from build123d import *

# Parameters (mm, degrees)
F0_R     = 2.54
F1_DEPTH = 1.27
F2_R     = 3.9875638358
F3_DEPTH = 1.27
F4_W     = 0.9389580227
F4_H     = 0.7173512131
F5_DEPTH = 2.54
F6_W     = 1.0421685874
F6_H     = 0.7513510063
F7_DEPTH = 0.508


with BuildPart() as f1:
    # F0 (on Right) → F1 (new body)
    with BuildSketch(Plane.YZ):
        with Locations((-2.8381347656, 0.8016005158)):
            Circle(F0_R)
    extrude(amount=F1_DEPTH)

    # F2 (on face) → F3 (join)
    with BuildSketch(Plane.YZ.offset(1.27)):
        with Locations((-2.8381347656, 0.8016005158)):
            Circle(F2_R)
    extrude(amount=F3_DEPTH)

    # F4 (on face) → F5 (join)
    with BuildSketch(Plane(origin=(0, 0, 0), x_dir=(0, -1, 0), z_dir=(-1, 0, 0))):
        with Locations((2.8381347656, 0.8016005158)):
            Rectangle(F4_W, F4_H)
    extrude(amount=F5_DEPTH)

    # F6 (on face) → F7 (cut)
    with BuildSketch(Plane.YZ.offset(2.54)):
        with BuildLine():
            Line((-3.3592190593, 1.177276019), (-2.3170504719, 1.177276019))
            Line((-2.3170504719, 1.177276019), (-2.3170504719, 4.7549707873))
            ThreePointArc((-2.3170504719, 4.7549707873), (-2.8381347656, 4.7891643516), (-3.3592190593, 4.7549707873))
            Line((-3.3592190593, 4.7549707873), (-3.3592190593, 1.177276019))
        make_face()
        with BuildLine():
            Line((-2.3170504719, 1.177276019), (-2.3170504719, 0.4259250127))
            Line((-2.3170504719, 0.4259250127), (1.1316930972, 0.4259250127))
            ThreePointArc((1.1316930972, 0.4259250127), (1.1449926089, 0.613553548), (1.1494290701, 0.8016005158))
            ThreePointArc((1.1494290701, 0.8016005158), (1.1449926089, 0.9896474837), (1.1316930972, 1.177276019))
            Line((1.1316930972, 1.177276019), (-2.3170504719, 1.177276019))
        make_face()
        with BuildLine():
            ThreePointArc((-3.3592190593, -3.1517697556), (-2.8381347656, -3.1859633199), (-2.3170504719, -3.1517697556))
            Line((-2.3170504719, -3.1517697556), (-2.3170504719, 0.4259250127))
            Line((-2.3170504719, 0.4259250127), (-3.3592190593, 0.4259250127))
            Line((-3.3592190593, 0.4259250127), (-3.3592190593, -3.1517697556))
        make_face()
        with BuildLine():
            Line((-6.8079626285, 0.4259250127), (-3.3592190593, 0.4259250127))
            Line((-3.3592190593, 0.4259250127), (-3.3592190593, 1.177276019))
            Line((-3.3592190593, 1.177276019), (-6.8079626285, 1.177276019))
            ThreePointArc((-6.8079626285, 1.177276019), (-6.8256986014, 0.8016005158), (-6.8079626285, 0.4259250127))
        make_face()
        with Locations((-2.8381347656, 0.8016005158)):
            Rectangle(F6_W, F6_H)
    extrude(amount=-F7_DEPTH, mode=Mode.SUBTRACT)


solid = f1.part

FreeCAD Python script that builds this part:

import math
import FreeCAD as App
import Part
import Sketcher
Q = App.Units.Quantity


def add_polygon(sketch, points):
    """Adds a closed chain of lines whose ends are joined by coincident constraints."""
    first, n = sketch.GeometryCount, len(points)
    for a, b in zip(points, points[1:] + points[:1]):
        sketch.addGeometry(Part.LineSegment(App.Vector(*a, 0), App.Vector(*b, 0)), False)
    for i in range(n):
        sketch.addConstraint(Sketcher.Constraint("Coincident", first + i, 2, first + (i + 1) % n, 1))

doc = App.newDocument("Part")
params = doc.addObject("Spreadsheet::Sheet", "Params")
for row, (alias, value) in enumerate([
    ("sketch1_diameter", "0.2 in"),
    ("pad1_length", "0.05 in"),
    ("pad2_length", "0.05 in"),
    ("pad3_length", "0.1 in"),
    ("pocket1_length", "0.02 in"),
], start=1):
    params.set(f"A{row}", alias)
    params.set(f"B{row}", "=" + value)
    params.setAlias(f"B{row}", alias)

body = doc.addObject("PartDesign::Body", "Body")

sketch1 = doc.addObject("Sketcher::SketchObject", "Sketch")
body.addObject(sketch1)
sketch1.AttachmentSupport = (doc.YZ_Plane, [""])
sketch1.MapMode = "FlatFace"
sketch1.addGeometry(Part.Circle(App.Vector(-2.838135, 0.801601, 0), App.Vector(0, 0, 1), 2.54), False)
sketch1.addConstraint([
    Sketcher.Constraint("Diameter", 0, Q("0.2 in")),
    Sketcher.Constraint("DistanceY", -1, 1, 0, 3, 0.801601),
    Sketcher.Constraint("DistanceX", 0, 3, -1, 1, 2.838135),
])
sketch1.setExpression("Constraints[0]", "Params.sketch1_diameter")
pad1 = doc.addObject("PartDesign::Pad", "Pad")
body.addObject(pad1)
pad1.Profile = sketch1
pad1.setExpression("Length", "Params.pad1_length")

sketch2 = doc.addObject("Sketcher::SketchObject", "Sketch001")
body.addObject(sketch2)
sketch2.AttachmentSupport = (doc.YZ_Plane, [""])
sketch2.MapMode = "FlatFace"
sketch2.AttachmentOffset = App.Placement(App.Vector(0, 0, 0.05 * 25.4), App.Rotation())
sketch2.addGeometry(Part.Circle(App.Vector(-2.838135, 0.801601, 0), App.Vector(0, 0, 1), 3.987564), False)
sketch2.addConstraint([
    Sketcher.Constraint("Diameter", 0, 7.975128),
    Sketcher.Constraint("DistanceY", -1, 1, 0, 3, 0.801601),
    Sketcher.Constraint("DistanceX", 0, 3, -1, 1, 2.838135),
])
pad2 = doc.addObject("PartDesign::Pad", "Pad001")
body.addObject(pad2)
pad2.Profile = sketch2
pad2.setExpression("Length", "Params.pad2_length")

sketch3 = doc.addObject("Sketcher::SketchObject", "Sketch002")
body.addObject(sketch3)
sketch3.AttachmentSupport = (doc.YZ_Plane, [""])
sketch3.MapMode = "FlatFace"
add_polygon(sketch3, [(-2.368656, 1.160276), (-2.368656, 0.442925), (-3.307614, 0.442925), (-3.307614, 1.160276)])
sketch3.addConstraint([
    Sketcher.Constraint("Vertical", 0),
    Sketcher.Constraint("Horizontal", 1),
    Sketcher.Constraint("Vertical", 2),
    Sketcher.Constraint("Horizontal", 3),
    Sketcher.Constraint("DistanceX", 1, 2, 1, 1, 0.938958),
    Sketcher.Constraint("DistanceY", 0, 2, 0, 1, 0.717351),
    Sketcher.Constraint("DistanceX", 0, 2, -1, 1, 2.368656),
    Sketcher.Constraint("DistanceY", -1, 1, 0, 2, 0.442925),
])
pad3 = doc.addObject("PartDesign::Pad", "Pad002")
body.addObject(pad3)
pad3.Profile = sketch3
pad3.setExpression("Length", "Params.pad3_length")
pad3.Reversed = True

sketch4 = doc.addObject("Sketcher::SketchObject", "Sketch003")
body.addObject(sketch4)
sketch4.AttachmentSupport = (doc.YZ_Plane, [""])
sketch4.MapMode = "FlatFace"
sketch4.AttachmentOffset = App.Placement(App.Vector(0, 0, 0.1 * 25.4), App.Rotation())
sketch4.addGeometry([
    Part.LineSegment(App.Vector(-2.31705, 1.177276, 0), App.Vector(-2.31705, 4.754971, 0)),
    Part.ArcOfCircle(Part.Circle(App.Vector(-2.838135, 0.801601, 0), App.Vector(0, 0, 1), 3.987564), math.radians(82.491264), math.radians(97.508736)),
    Part.LineSegment(App.Vector(-3.359219, 4.754971, 0), App.Vector(-3.359219, 1.177276, 0)),
    Part.LineSegment(App.Vector(-3.359219, 1.177276, 0), App.Vector(-6.807963, 1.177276, 0)),
    Part.ArcOfCircle(Part.Circle(App.Vector(-2.838135, 0.801601, 0), App.Vector(0, 0, 1), 3.987564), math.radians(174.594045), math.radians(185.405955)),
    Part.LineSegment(App.Vector(-6.807963, 0.425925, 0), App.Vector(-3.359219, 0.425925, 0)),
    Part.LineSegment(App.Vector(-3.359219, 0.425925, 0), App.Vector(-3.359219, -3.15177, 0)),
    Part.ArcOfCircle(Part.Circle(App.Vector(-2.838135, 0.801601, 0), App.Vector(0, 0, 1), 3.987564), math.radians(-97.508736), math.radians(-82.491264)),
    Part.LineSegment(App.Vector(-2.31705, -3.15177, 0), App.Vector(-2.31705, 0.425925, 0)),
    Part.LineSegment(App.Vector(-2.31705, 0.425925, 0), App.Vector(1.131693, 0.425925, 0)),
    Part.ArcOfCircle(Part.Circle(App.Vector(-2.838135, 0.801601, 0), App.Vector(0, 0, 1), 3.987564), math.radians(-5.405955), math.radians(0)),
    Part.ArcOfCircle(Part.Circle(App.Vector(-2.838135, 0.801601, 0), App.Vector(0, 0, 1), 3.987564), math.radians(0), math.radians(5.405955)),
    Part.LineSegment(App.Vector(1.131693, 1.177276, 0), App.Vector(-2.31705, 1.177276, 0)),
], False)
sketch4.addConstraint([
    Sketcher.Constraint("Coincident", 0, 2, 1, 1),
    Sketcher.Constraint("Coincident", 1, 2, 2, 1),
    Sketcher.Constraint("Coincident", 2, 2, 3, 1),
    Sketcher.Constraint("Coincident", 3, 2, 4, 1),
    Sketcher.Constraint("Coincident", 4, 2, 5, 1),
    Sketcher.Constraint("Coincident", 5, 2, 6, 1),
    Sketcher.Constraint("Coincident", 6, 2, 7, 1),
    Sketcher.Constraint("Coincident", 7, 2, 8, 1),
    Sketcher.Constraint("Coincident", 8, 2, 9, 1),
    Sketcher.Constraint("Coincident", 9, 2, 10, 1),
    Sketcher.Constraint("Tangent", 10, 2, 11, 1),
    Sketcher.Constraint("Coincident", 11, 2, 12, 1),
    Sketcher.Constraint("Coincident", 12, 2, 0, 1),
    Sketcher.Constraint("Vertical", 0),
    Sketcher.Constraint("Vertical", 2),
    Sketcher.Constraint("Horizontal", 3),
    Sketcher.Constraint("Horizontal", 5),
    Sketcher.Constraint("Vertical", 6),
    Sketcher.Constraint("Vertical", 8),
    Sketcher.Constraint("Horizontal", 9),
    Sketcher.Constraint("Horizontal", 12),
    Sketcher.Constraint("Coincident", 4, 3, 1, 3),
    Sketcher.Constraint("Coincident", 7, 3, 1, 3),
    Sketcher.Constraint("Coincident", 10, 3, 1, 3),
    Sketcher.Constraint("Equal", 1, 4),
    Sketcher.Constraint("Equal", 4, 7),
    Sketcher.Constraint("Equal", 7, 10),
    Sketcher.Constraint("Equal", 10, 11),
    Sketcher.Constraint("Horizontal", 0, 2, 1, 2),
    Sketcher.Constraint("Horizontal", 6, 2, 7, 2),
    Sketcher.Constraint("Horizontal", 5, 2, 8, 2),
    Sketcher.Constraint("Horizontal", 11, 3, 10, 2),
    Sketcher.Constraint("Horizontal", 3, 2, 11, 2),
    Sketcher.Constraint("Vertical", 3, 2, 4, 2),
    Sketcher.Constraint("Vertical", 2, 2, 5, 2),
    Sketcher.Constraint("Radius", 1, 3.987564),
    Sketcher.Constraint("DistanceY", -1, 1, 1, 3, 0.801601),
    Sketcher.Constraint("DistanceX", 3, 2, 3, 1, 3.448744),
    Sketcher.Constraint("DistanceY", 0, 1, 0, 2, 3.577695),
    Sketcher.Constraint("DistanceX", 0, 2, -1, 1, 2.31705),
])
pocket1 = doc.addObject("PartDesign::Pocket", "Pocket")
body.addObject(pocket1)
pocket1.Profile = sketch4
pocket1.setExpression("Length", "Params.pocket1_length")

doc.recompute()
